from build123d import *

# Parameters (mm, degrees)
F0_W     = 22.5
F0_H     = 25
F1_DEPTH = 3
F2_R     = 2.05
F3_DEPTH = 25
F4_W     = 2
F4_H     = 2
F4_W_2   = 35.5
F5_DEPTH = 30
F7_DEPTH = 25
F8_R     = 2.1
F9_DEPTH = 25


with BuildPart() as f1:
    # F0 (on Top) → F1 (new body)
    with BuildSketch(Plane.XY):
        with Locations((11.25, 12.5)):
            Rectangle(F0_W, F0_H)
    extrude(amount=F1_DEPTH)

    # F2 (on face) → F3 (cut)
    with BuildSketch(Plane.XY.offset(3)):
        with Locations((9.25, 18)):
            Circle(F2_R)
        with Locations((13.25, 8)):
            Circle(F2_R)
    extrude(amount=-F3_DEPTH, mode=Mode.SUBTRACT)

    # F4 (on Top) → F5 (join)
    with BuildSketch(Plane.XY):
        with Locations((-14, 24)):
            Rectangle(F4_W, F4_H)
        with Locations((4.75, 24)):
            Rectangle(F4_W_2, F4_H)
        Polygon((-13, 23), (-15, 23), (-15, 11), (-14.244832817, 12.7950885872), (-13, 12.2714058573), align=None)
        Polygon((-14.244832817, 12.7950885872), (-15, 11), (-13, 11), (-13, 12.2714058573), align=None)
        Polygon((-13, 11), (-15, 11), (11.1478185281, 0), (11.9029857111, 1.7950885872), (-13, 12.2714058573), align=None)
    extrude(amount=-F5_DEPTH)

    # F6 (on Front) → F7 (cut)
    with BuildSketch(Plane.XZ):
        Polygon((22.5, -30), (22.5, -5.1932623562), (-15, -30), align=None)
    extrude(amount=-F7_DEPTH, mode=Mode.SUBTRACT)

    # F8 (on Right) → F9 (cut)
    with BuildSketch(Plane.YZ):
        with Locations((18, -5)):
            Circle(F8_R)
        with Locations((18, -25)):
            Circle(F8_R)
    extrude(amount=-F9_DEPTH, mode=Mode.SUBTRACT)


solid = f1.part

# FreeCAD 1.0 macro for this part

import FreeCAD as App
import Part
import Sketcher

V = App.Vector

doc = App.newDocument("Part")
body = doc.addObject("PartDesign::Body", "Body")

sketch1 = body.newObject("Sketcher::SketchObject", "Sketch")
sketch1.AttachmentSupport = (doc.getObject("XY_Plane"), [""])
sketch1.MapMode = "FlatFace"
sketch1.addGeometry(Part.LineSegment(V(0, 25, 0), V(0, 0, 0)), False)
sketch1.addGeometry(Part.LineSegment(V(0, 0, 0), V(22, 0, 0)), False)
sketch1.addGeometry(Part.LineSegment(V(22, 0, 0), V(22, 25, 0)), False)
sketch1.addGeometry(Part.LineSegment(V(22, 25, 0), V(0, 25, 0)), False)
sketch1.addConstraint(Sketcher.Constraint("Coincident", 0, 2, 1, 1))
sketch1.addConstraint(Sketcher.Constraint("Coincident", 1, 2, 2, 1))
sketch1.addConstraint(Sketcher.Constraint("Coincident", 2, 2, 3, 1))
sketch1.addConstraint(Sketcher.Constraint("Coincident", 3, 2, 0, 1))
sketch1.addConstraint(Sketcher.Constraint("Vertical", 0))
sketch1.addConstraint(Sketcher.Constraint("Horizontal", 1))
sketch1.addConstraint(Sketcher.Constraint("Vertical", 2))
sketch1.addConstraint(Sketcher.Constraint("Horizontal", 3))
sketch1.addConstraint(Sketcher.Constraint("Coincident", 0, 2, -1, 1))
sketch1.addConstraint(Sketcher.Constraint("DistanceY", 0, 2, 0, 1, 25.0))
sketch1.addConstraint(Sketcher.Constraint("DistanceX", 1, 1, 1, 2, 22.5))
pad1 = body.newObject("PartDesign::Pad", "Pad")
pad1.Profile = sketch1
pad1.Length = 3

sketch2 = body.newObject("Sketcher::SketchObject", "Sketch001")
sketch2.AttachmentSupport = (doc.getObject("XY_Plane"), [""])
sketch2.MapMode = "FlatFace"
sketch2.AttachmentOffset = App.Placement(V(0, 0, 3), App.Rotation())
sketch2.addGeometry(Part.Circle(V(9.2, 18, 0), V(0, 0, 1), 2), False)
sketch2.addGeometry(Part.Circle(V(13.2, 8, 0), V(0, 0, 1), 2), False)
sketch2.addConstraint(Sketcher.Constraint("Equal", 0, 1))
sketch2.addConstraint(Sketcher.Constraint("Diameter", 0, 4.1))
sketch2.addConstraint(Sketcher.Constraint("DistanceY", -1, 1, 0, 3, 18.0))
sketch2.addConstraint(Sketcher.Constraint("DistanceY", -1, 1, 1, 3, 8.0))
sketch2.addConstraint(Sketcher.Constraint("DistanceX", 0, 3, 1, 3, 4.0))
sketch2.addConstraint(Sketcher.Constraint("DistanceX", -1, 1, 0, 3, 9.25))
pocket1 = body.newObject("PartDesign::Pocket", "Pocket")
pocket1.Profile = sketch2
pocket1.Length = 25

sketch3 = body.newObject("Sketcher::SketchObject", "Sketch002")
sketch3.AttachmentSupport = (doc.getObject("XY_Plane"), [""])
sketch3.MapMode = "FlatFace"
sketch3.addGeometry(Part.LineSegment(V(-15, 25, 0), V(-15, 11, 0)), False)
sketch3.addGeometry(Part.LineSegment(V(-15, 11, 0), V(11.1, 0, 0)), False)
sketch3.addGeometry(Part.LineSegment(V(11.1, 0, 0), V(11.9, 1.8, 0)), False)
sketch3.addGeometry(Part.LineSegment(V(11.9, 1.8, 0), V(-13, 12.3, 0)), False)
sketch3.addGeometry(Part.LineSegment(V(-13, 12.3, 0), V(-13, 23, 0)), False)
sketch3.addGeometry(Part.LineSegment(V(-13, 23, 0), V(22.5, 23, 0)), False)
sketch3.addGeometry(Part.LineSegment(V(22.5, 23, 0), V(22.5, 25, 0)), False)
sketch3.addGeometry(Part.LineSegment(V(22.5, 25, 0), V(-15, 25, 0)), False)
sketch3.addConstraint(Sketcher.Constraint("Coincident", 0, 2, 1, 1))
sketch3.addConstraint(Sketcher.Constraint("Coincident", 1, 2, 2, 1))
sketch3.addConstraint(Sketcher.Constraint("Coincident", 2, 2, 3, 1))
sketch3.addConstraint(Sketcher.Constraint("Coincident", 3, 2, 4, 1))
sketch3.addConstraint(Sketcher.Constraint("Coincident", 4, 2, 5, 1))
sketch3.addConstraint(Sketcher.Constraint("Coincident", 5, 2, 6, 1))
sketch3.addConstraint(Sketcher.Constraint("Coincident", 6, 2, 7, 1))
sketch3.addConstraint(Sketcher.Constraint("Coincident", 7, 2, 0, 1))
sketch3.addConstraint(Sketcher.Constraint("Vertical", 0))
sketch3.addConstraint(Sketcher.Constraint("Vertical", 4))
sketch3.addConstraint(Sketcher.Constraint("Horizontal", 5))
sketch3.addConstraint(Sketcher.Constraint("Vertical", 6))
sketch3.addConstraint(Sketcher.Constraint("Horizontal", 7))
sketch3.addConstraint(Sketcher.Constraint("PointOnObject", 1, 2, -1))
sketch3.addConstraint(Sketcher.Constraint("Perpendicular", 1, 2))
sketch3.addConstraint(Sketcher.Constraint("Perpendicular", 2, 3))
sketch3.addConstraint(Sketcher.Constraint("DistanceY", 0, 2, 0, 1, 14.0))
sketch3.addConstraint(Sketcher.Constraint("DistanceY", 6, 1, 6, 2, 2.0))
sketch3.addConstraint(Sketcher.Constraint("DistanceX", 5, 1, 5, 2, 35.5))
sketch3.addConstraint(Sketcher.Constraint("DistanceX", 7, 2, 7, 1, 37.5))
sketch3.addConstraint(Sketcher.Constraint("DistanceX", 0, 2, -1, 1, 15.0))
sketch3.addConstraint(Sketcher.Constraint("DistanceY", -1, 1, 0, 2, 11.0))
sketch3.addConstraint(Sketcher.Constraint("DistanceY", 4, 1, 4, 2, 10.728594))
sketch3.addConstraint(Sketcher.Constraint("DistanceX", -1, 1, 1, 2, 11.147819))
pad2 = body.newObject("PartDesign::Pad", "Pad001")
pad2.Profile = sketch3
pad2.Length = 30
pad2.Reversed = True

sketch4 = body.newObject("Sketcher::SketchObject", "Sketch003")
sketch4.AttachmentSupport = (doc.getObject("XZ_Plane"), [""])
sketch4.MapMode = "FlatFace"
sketch4.addGeometry(Part.LineSegment(V(22, -30, 0), V(22, -5, 0)), False)
sketch4.addGeometry(Part.LineSegment(V(22, -5, 0), V(-15, -30, 0)), False)
sketch4.addGeometry(Part.LineSegment(V(-15, -30, 0), V(22, -30, 0)), False)
sketch4.addConstraint(Sketcher.Constraint("Coincident", 0, 2, 1, 1))
sketch4.addConstraint(Sketcher.Constraint("Coincident", 1, 2, 2, 1))
sketch4.addConstraint(Sketcher.Constraint("Coincident", 2, 2, 0, 1))
sketch4.addConstraint(Sketcher.Constraint("Vertical", 0))
sketch4.addConstraint(Sketcher.Constraint("Horizontal", 2))
sketch4.addConstraint(Sketcher.Constraint("DistanceX", 2, 1, 2, 2, 37.5))
sketch4.addConstraint(Sketcher.Constraint("DistanceX", 1, 2, -1, 1, 15.0))
sketch4.addConstraint(Sketcher.Constraint("DistanceY", 1, 2, -1, 1, 30.0))
sketch4.addConstraint(Sketcher.Constraint("DistanceY", 0, 1, 0, 2, 24.806738))
pocket2 = body.newObject("PartDesign::Pocket", "Pocket001")
pocket2.Profile = sketch4
pocket2.Length = 25

sketch5 = body.newObject("Sketcher::SketchObject", "Sketch004")
sketch5.AttachmentSupport = (doc.getObject("YZ_Plane"), [""])
sketch5.MapMode = "FlatFace"
sketch5.addGeometry(Part.Circle(V(18, -5, 0), V(0, 0, 1), 2.1), False)
sketch5.addGeometry(Part.Circle(V(18, -25, 0), V(0, 0, 1), 2.1), False)
sketch5.addConstraint(Sketcher.Constraint("Equal", 0, 1))
sketch5.addConstraint(Sketcher.Constraint("Vertical", 0, 3, 1, 3))
sketch5.addConstraint(Sketcher.Constraint("Diameter", 0, 4.2))
sketch5.addConstraint(Sketcher.Constraint("DistanceX", -1, 1, 0, 3, 18.0))
sketch5.addConstraint(Sketcher.Constraint("DistanceY", 0, 3, -1, 1, 5.0))
sketch5.addConstraint(Sketcher.Constraint("DistanceY", 1, 3, -1, 1, 25.0))
pocket3 = body.newObject("PartDesign::Pocket", "Pocket002")
pocket3.Profile = sketch5
pocket3.Length = 25

doc.recompute()
